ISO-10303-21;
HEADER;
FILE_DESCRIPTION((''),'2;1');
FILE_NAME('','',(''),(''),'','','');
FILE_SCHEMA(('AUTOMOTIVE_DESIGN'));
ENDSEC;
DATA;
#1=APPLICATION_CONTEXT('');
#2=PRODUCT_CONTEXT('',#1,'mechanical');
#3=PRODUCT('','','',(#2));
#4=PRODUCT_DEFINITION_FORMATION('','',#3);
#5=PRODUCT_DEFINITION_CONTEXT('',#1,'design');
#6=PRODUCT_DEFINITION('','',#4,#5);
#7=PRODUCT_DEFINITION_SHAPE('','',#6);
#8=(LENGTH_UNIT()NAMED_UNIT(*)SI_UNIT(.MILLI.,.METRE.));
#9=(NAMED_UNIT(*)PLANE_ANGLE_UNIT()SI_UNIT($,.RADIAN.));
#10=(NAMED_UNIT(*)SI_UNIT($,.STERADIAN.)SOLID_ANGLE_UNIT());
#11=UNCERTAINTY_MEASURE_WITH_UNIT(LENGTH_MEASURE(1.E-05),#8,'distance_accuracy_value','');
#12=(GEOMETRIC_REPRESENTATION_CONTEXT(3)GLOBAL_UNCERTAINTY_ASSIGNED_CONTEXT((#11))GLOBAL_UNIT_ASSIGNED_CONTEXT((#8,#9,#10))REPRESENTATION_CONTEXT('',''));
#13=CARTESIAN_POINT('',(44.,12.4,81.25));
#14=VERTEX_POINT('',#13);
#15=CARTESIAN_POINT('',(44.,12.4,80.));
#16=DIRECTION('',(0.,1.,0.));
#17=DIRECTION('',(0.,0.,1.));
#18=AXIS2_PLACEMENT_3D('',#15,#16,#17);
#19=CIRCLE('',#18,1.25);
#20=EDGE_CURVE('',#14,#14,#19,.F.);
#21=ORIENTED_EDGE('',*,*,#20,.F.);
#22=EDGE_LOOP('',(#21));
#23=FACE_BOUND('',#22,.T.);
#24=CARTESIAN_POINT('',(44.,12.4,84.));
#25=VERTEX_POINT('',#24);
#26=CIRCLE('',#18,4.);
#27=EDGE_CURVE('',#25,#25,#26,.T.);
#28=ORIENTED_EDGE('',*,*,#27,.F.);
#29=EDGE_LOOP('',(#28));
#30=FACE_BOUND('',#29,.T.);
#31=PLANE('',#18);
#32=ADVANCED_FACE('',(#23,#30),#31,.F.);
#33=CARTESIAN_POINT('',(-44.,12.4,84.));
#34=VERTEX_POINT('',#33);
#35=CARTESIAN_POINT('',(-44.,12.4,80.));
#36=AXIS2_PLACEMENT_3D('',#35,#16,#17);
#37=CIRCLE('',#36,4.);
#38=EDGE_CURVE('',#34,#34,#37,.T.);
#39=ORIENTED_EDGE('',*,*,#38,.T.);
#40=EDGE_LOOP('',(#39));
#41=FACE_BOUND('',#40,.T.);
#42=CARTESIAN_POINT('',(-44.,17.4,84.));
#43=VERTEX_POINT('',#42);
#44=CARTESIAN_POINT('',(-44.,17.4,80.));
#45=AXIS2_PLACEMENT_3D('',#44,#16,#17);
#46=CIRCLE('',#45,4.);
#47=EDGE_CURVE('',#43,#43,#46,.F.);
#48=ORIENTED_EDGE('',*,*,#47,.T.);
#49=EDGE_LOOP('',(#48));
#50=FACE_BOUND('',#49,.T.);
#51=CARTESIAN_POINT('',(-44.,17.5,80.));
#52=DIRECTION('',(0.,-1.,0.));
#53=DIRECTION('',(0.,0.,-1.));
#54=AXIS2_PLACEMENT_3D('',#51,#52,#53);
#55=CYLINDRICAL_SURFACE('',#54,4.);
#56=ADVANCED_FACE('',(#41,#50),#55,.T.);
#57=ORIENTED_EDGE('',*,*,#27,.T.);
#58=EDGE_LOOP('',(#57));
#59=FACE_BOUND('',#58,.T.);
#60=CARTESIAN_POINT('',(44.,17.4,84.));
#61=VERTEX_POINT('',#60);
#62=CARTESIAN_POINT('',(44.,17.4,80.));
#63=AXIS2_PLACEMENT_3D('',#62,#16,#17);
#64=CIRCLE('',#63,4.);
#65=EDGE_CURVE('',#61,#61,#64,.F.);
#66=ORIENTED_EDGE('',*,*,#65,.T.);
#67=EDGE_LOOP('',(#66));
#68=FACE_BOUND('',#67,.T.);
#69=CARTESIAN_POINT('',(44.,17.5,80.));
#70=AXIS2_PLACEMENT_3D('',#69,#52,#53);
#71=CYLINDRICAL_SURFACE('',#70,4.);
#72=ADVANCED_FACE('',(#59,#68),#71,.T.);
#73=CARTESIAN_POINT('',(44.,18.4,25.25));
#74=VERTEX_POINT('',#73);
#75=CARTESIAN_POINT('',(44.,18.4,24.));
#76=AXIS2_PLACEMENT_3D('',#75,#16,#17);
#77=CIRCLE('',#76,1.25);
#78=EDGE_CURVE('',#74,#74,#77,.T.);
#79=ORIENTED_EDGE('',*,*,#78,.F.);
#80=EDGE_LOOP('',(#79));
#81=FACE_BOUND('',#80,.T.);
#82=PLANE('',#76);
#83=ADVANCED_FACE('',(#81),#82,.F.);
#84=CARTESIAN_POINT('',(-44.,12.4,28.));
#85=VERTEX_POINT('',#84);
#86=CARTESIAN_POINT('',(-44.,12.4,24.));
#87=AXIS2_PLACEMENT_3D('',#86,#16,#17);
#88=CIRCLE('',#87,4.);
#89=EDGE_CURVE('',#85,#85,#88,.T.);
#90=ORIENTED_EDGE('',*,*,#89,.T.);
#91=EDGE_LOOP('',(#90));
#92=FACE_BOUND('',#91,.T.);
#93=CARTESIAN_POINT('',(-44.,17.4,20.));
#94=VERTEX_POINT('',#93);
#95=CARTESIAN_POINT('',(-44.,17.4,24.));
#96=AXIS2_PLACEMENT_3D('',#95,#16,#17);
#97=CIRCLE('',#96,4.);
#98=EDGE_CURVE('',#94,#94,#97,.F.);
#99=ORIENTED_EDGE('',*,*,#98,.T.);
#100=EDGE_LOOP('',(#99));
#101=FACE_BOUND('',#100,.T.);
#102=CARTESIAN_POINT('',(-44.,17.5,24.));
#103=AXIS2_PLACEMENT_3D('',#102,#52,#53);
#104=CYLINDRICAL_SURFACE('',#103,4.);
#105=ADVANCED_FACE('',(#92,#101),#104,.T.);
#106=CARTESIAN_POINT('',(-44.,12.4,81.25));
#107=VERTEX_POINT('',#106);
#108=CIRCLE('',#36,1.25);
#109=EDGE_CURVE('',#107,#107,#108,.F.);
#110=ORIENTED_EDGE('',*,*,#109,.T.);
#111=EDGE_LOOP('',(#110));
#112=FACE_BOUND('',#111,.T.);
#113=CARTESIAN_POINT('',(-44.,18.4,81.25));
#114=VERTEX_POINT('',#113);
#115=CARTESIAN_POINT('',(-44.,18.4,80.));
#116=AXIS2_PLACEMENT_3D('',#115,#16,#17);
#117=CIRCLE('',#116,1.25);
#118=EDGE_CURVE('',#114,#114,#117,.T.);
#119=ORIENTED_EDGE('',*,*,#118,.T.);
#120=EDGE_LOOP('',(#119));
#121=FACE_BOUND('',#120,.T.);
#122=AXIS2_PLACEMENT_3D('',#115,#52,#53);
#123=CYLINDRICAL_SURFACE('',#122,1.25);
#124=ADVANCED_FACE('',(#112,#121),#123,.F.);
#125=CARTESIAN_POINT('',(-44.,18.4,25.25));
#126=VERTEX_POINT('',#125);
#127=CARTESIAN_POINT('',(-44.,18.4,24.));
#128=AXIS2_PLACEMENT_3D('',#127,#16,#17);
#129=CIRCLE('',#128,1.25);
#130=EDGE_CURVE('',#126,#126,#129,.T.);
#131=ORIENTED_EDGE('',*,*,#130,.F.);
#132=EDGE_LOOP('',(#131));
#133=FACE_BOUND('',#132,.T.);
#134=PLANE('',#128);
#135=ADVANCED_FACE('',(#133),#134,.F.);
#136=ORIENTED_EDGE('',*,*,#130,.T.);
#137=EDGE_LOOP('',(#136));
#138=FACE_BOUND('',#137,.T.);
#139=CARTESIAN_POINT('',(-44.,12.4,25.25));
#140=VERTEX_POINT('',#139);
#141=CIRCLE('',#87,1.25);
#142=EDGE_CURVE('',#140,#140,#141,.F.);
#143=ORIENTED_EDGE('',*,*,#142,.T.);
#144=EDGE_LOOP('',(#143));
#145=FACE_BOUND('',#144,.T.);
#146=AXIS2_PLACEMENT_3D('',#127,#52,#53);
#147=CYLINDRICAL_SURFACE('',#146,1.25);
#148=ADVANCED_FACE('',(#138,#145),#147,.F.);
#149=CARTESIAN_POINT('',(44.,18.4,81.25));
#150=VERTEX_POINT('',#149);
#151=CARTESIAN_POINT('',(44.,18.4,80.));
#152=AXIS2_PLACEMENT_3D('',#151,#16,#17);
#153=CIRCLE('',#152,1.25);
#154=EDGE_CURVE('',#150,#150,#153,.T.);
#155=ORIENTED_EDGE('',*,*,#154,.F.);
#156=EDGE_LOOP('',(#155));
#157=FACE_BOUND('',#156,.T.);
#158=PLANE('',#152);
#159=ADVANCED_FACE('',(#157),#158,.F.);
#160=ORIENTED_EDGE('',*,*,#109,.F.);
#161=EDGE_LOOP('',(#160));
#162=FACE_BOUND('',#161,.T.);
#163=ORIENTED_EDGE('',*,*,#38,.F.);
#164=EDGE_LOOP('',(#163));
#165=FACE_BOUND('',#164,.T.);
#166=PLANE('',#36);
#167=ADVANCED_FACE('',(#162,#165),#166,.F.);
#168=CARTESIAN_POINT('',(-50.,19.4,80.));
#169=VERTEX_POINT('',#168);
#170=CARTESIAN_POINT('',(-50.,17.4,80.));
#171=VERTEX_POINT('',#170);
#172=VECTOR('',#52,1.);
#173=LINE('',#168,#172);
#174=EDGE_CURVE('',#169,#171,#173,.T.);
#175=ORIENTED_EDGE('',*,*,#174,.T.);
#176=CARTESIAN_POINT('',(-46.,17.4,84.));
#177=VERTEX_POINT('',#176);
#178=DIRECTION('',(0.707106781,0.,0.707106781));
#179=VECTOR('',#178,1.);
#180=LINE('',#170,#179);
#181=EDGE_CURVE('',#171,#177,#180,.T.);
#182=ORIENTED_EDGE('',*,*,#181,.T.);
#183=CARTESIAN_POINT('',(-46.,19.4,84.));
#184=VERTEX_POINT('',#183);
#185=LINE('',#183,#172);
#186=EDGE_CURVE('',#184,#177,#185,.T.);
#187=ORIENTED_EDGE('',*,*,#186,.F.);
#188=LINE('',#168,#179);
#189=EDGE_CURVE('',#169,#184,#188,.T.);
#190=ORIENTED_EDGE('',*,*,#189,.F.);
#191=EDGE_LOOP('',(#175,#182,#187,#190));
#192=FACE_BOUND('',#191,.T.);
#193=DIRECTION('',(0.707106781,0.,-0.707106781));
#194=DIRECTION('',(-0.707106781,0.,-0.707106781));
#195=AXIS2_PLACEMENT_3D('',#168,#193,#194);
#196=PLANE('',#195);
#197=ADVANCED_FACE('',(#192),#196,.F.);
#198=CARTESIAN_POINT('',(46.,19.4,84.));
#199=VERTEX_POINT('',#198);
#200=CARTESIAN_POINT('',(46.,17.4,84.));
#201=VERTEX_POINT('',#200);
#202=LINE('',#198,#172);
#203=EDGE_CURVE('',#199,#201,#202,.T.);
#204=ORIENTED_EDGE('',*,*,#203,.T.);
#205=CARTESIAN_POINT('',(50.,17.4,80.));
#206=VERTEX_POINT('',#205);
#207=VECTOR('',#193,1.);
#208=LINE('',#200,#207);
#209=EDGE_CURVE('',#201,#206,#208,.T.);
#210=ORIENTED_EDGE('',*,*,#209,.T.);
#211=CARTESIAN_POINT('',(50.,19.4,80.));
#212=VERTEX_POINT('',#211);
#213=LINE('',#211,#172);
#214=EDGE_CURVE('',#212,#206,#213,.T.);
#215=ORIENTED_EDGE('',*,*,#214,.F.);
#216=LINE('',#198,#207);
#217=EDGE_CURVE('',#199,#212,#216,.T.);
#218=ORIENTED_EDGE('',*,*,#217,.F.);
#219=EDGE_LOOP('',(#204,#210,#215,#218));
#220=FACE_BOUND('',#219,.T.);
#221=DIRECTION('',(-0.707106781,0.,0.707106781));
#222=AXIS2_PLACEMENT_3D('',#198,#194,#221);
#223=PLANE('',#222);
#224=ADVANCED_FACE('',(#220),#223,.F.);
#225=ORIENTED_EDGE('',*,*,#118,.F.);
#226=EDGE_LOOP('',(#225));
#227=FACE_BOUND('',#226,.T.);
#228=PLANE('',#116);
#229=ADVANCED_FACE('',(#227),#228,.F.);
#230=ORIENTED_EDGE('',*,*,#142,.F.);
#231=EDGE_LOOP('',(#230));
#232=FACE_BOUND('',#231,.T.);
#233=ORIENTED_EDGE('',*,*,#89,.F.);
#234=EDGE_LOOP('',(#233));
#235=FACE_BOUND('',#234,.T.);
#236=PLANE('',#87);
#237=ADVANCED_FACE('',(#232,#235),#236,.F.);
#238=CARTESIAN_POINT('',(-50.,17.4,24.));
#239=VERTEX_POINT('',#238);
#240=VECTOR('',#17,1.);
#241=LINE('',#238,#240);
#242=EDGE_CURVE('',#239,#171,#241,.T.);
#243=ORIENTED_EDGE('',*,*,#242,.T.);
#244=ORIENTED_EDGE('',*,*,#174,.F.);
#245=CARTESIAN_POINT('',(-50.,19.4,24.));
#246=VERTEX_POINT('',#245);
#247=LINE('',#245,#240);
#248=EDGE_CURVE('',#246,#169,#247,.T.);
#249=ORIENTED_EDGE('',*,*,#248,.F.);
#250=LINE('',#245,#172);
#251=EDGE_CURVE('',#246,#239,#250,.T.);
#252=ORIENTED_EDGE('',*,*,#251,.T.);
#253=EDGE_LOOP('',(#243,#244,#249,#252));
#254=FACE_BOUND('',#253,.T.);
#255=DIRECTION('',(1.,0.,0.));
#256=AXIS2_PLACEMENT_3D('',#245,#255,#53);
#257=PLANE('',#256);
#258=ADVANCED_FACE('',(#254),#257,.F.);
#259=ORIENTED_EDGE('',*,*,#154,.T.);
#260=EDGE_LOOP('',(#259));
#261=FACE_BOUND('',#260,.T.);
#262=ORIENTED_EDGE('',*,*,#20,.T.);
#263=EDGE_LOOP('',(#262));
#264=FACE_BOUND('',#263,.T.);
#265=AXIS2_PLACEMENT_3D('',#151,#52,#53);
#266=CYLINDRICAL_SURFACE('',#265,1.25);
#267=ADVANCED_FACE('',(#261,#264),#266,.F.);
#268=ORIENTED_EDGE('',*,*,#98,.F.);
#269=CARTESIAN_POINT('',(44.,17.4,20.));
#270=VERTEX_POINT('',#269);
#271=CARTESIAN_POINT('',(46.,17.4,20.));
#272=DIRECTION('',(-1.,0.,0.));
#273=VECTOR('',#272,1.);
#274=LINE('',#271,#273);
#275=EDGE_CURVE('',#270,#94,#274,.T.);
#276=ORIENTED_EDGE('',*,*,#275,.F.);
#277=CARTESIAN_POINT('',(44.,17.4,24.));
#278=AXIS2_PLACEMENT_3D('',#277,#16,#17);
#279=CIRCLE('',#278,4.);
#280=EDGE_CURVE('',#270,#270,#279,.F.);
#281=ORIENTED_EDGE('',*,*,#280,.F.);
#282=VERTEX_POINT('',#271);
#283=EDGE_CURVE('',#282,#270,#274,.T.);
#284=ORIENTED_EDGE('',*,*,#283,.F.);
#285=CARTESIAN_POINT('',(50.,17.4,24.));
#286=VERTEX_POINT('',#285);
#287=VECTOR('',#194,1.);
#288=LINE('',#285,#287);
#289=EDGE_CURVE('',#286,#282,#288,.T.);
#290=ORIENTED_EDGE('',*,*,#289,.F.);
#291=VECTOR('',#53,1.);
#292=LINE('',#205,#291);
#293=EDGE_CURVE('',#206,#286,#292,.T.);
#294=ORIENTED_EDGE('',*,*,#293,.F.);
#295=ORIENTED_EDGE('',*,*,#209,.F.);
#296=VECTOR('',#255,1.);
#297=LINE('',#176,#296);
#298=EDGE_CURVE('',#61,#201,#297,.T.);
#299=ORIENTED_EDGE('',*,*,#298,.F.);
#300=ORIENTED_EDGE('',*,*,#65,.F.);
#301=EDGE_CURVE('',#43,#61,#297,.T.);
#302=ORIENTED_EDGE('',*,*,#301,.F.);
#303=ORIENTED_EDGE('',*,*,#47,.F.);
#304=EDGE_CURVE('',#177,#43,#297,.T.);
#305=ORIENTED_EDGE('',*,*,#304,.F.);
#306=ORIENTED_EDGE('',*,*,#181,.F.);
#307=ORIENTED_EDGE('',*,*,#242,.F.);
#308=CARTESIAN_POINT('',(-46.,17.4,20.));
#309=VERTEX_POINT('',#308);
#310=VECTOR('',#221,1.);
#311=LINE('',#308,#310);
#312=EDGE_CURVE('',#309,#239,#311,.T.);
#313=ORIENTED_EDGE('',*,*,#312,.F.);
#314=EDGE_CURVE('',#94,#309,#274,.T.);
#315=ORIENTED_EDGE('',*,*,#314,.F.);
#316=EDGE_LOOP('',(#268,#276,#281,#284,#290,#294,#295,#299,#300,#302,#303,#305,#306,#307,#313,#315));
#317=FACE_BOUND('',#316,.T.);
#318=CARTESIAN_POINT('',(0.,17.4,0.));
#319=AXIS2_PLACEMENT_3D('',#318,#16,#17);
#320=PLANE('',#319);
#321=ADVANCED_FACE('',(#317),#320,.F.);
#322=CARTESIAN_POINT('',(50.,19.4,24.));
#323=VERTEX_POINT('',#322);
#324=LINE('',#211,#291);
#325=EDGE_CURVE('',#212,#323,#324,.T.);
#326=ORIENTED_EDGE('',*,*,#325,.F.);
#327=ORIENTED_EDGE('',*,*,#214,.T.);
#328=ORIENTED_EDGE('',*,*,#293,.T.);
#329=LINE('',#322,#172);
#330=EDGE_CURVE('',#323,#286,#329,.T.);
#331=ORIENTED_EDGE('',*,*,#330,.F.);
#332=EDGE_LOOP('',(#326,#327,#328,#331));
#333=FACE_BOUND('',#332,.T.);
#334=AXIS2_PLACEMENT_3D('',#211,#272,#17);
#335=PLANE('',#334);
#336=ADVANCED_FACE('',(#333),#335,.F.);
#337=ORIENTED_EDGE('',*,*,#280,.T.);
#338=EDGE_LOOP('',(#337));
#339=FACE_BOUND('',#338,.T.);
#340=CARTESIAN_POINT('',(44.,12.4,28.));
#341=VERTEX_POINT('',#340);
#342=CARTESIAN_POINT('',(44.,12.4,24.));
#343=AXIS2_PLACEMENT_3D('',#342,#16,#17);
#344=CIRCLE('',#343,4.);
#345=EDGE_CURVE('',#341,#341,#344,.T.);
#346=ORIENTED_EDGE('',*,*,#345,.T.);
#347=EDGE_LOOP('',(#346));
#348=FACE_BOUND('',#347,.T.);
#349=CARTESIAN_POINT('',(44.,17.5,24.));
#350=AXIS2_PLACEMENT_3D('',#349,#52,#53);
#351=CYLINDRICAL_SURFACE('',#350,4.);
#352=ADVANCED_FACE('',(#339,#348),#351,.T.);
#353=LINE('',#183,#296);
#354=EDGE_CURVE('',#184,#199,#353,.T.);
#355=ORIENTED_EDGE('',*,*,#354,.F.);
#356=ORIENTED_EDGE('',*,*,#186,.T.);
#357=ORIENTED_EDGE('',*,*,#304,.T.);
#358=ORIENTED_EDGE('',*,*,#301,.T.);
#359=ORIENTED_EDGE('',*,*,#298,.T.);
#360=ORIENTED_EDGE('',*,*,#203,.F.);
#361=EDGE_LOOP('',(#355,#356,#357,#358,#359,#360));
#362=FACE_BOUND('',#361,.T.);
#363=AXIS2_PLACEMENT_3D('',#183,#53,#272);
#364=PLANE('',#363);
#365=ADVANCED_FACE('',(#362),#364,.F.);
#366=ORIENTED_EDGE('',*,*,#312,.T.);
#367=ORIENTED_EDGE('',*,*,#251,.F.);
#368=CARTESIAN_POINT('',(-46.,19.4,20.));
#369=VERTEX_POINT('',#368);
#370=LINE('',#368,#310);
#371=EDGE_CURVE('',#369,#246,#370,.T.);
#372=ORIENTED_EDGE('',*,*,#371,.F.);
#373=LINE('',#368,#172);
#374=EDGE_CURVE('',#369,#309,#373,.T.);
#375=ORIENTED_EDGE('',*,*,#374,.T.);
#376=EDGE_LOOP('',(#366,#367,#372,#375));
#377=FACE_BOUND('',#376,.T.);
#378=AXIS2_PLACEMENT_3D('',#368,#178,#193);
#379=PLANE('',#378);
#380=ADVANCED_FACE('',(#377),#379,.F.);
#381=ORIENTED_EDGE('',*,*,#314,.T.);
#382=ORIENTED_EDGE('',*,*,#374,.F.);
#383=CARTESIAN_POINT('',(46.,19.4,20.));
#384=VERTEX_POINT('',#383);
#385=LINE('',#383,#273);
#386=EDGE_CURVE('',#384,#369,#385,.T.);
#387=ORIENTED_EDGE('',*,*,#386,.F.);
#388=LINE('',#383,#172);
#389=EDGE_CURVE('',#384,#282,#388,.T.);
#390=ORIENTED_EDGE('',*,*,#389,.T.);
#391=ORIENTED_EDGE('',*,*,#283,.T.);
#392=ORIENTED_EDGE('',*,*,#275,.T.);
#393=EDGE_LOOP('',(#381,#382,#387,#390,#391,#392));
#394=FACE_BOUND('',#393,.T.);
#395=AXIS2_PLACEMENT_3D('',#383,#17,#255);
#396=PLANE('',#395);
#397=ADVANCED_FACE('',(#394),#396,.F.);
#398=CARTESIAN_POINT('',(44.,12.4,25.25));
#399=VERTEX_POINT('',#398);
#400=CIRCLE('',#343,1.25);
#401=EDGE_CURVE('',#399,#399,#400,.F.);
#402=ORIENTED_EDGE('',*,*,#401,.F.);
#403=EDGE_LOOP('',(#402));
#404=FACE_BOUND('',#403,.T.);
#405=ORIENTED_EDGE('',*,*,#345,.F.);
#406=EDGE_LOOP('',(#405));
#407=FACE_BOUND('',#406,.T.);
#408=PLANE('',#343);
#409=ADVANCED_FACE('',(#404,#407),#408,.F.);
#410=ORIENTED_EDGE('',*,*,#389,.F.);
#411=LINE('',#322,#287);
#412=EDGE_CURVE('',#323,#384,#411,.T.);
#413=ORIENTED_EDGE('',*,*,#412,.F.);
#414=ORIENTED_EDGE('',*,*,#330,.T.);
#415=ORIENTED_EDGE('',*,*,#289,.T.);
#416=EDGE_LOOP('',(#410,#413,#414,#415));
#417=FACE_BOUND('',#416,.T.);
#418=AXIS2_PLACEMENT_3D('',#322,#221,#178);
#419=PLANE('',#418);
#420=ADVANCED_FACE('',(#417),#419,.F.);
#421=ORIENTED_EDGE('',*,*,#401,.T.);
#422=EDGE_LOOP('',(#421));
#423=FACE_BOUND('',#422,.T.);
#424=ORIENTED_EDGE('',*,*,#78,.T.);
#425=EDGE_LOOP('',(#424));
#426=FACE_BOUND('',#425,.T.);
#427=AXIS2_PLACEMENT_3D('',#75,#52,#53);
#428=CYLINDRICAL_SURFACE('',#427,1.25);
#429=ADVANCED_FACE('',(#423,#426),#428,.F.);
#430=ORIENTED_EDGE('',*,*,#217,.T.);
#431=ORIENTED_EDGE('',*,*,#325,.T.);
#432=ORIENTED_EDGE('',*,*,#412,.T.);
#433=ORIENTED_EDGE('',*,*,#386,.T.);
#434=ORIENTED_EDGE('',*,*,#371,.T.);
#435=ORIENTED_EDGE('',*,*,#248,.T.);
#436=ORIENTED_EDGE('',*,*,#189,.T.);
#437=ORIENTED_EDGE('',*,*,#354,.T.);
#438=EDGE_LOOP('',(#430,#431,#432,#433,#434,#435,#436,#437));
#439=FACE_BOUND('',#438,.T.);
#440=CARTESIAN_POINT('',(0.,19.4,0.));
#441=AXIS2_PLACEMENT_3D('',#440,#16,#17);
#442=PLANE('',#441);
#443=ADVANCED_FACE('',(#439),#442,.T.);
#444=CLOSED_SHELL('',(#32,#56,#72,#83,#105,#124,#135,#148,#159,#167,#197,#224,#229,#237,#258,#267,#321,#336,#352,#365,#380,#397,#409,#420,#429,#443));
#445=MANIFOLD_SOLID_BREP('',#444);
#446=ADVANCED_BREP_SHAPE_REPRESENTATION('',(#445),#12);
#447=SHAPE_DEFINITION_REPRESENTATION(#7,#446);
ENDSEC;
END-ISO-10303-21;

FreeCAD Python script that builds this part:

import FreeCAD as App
import Part
import Sketcher

V = App.Vector
Q = App.Units.Quantity

doc = App.newDocument("Part")
body = doc.addObject("PartDesign::Body", "Body")

# Sketch on XZ plane
sketch1 = doc.addObject("Sketcher::SketchObject", "Sketch")
body.addObject(sketch1)
sketch1.AttachmentSupport = (doc.XZ_Plane, [""])
sketch1.MapMode = "FlatFace"
sketch1.AttachmentOffset = App.Placement(V(0, 0, -17.4), App.Rotation())
sketch1.addGeometry([
    Part.LineSegment(V(-46, 84, 0), V(46, 84, 0)),  # 0
    Part.LineSegment(V(46, 84, 0), V(50, 80, 0)),  # 1
    Part.LineSegment(V(50, 80, 0), V(50, 24, 0)),  # 2
    Part.LineSegment(V(50, 24, 0), V(46, 20, 0)),  # 3
    Part.LineSegment(V(46, 20, 0), V(-46, 20, 0)),  # 4
    Part.LineSegment(V(-46, 20, 0), V(-50, 24, 0)),  # 5
    Part.LineSegment(V(-50, 24, 0), V(-50, 80, 0)),  # 6
    Part.LineSegment(V(-50, 80, 0), V(-46, 84, 0)),  # 7
], False)
sketch1.addConstraint([
    Sketcher.Constraint("Coincident", 0, 2, 1, 1),
    Sketcher.Constraint("Coincident", 1, 2, 2, 1),
    Sketcher.Constraint("Coincident", 2, 2, 3, 1),
    Sketcher.Constraint("Coincident", 3, 2, 4, 1),
    Sketcher.Constraint("Coincident", 4, 2, 5, 1),
    Sketcher.Constraint("Coincident", 5, 2, 6, 1),
    Sketcher.Constraint("Coincident", 6, 2, 7, 1),
    Sketcher.Constraint("Coincident", 7, 2, 0, 1),
    Sketcher.Constraint("Horizontal", 0),
    Sketcher.Constraint("Vertical", 2),
    Sketcher.Constraint("Horizontal", 4),
    Sketcher.Constraint("Vertical", 6),
    Sketcher.Constraint("Symmetric", 2, 2, 5, 2, -2),
    Sketcher.Constraint("Perpendicular", 1, 3),
    Sketcher.Constraint("Perpendicular", 3, 5),
    Sketcher.Constraint("Perpendicular", 5, 7),
    Sketcher.Constraint("Horizontal", 1, 2, 6, 2),
    Sketcher.Constraint("Vertical", 0, 2, 3, 2),
    Sketcher.Constraint("Vertical", 4, 2, 7, 2),
    Sketcher.Constraint("DistanceX", 0, 1, 0, 2, Q("92 mm")),
    Sketcher.Constraint("DistanceY", 2, 2, 2, 1, Q("56 mm")),
    Sketcher.Constraint("DistanceY", -1, 1, 0, 2, Q("84 mm")),
    Sketcher.Constraint("DistanceX", -1, 1, 1, 2, Q("50 mm")),
])
pad1 = doc.addObject("PartDesign::Pad", "Pad")
body.addObject(pad1)
pad1.Profile = sketch1
pad1.Length = 2
pad1.Reversed = True

# Sketch on XZ plane
sketch2 = doc.addObject("Sketcher::SketchObject", "Sketch001")
body.addObject(sketch2)
sketch2.AttachmentSupport = (doc.XZ_Plane, [""])
sketch2.MapMode = "FlatFace"
sketch2.AttachmentOffset = App.Placement(V(0, 0, -12.4), App.Rotation())
sketch2.addGeometry([
    Part.Circle(V(-44, 24, 0), V(0, 0, 1), 4),
    Part.Circle(V(-44, 80, 0), V(0, 0, 1), 4),
    Part.Circle(V(44, 24, 0), V(0, 0, 1), 4),
    Part.Circle(V(44, 80, 0), V(0, 0, 1), 4),
], False)
sketch2.addConstraint([
    Sketcher.Constraint("Equal", 0, 1),
    Sketcher.Constraint("Equal", 1, 2),
    Sketcher.Constraint("Equal", 2, 3),
    Sketcher.Constraint("Symmetric", 0, 3, 2, 3, -2),
    Sketcher.Constraint("Symmetric", 1, 3, 3, 3, -2),
    Sketcher.Constraint("Vertical", 0, 3, 1, 3),
    Sketcher.Constraint("Diameter", 0, Q("8 mm")),
    Sketcher.Constraint("DistanceX", 0, 3, -1, 1, Q("44 mm")),
    Sketcher.Constraint("DistanceY", -1, 1, 0, 3, Q("24 mm")),
    Sketcher.Constraint("DistanceY", -1, 1, 1, 3, Q("80 mm")),
])
pad2 = doc.addObject("PartDesign::Pad", "Pad001")
body.addObject(pad2)
pad2.Profile = sketch2
pad2.Length = 5.1
pad2.Reversed = True

# Sketch on XZ plane
sketch3 = doc.addObject("Sketcher::SketchObject", "Sketch002")
body.addObject(sketch3)
sketch3.AttachmentSupport = (doc.XZ_Plane, [""])
sketch3.MapMode = "FlatFace"
sketch3.AttachmentOffset = App.Placement(V(0, 0, -11.9), App.Rotation())
sketch3.addGeometry([
    Part.Circle(V(-44, 24, 0), V(0, 0, 1), 1.25),
    Part.Circle(V(-44, 80, 0), V(0, 0, 1), 1.25),
    Part.Circle(V(44, 24, 0), V(0, 0, 1), 1.25),
    Part.Circle(V(44, 80, 0), V(0, 0, 1), 1.25),
], False)
sketch3.addConstraint([
    Sketcher.Constraint("Equal", 0, 1),
    Sketcher.Constraint("Equal", 1, 2),
    Sketcher.Constraint("Equal", 2, 3),
    Sketcher.Constraint("Symmetric", 0, 3, 2, 3, -2),
    Sketcher.Constraint("Symmetric", 1, 3, 3, 3, -2),
    Sketcher.Constraint("Vertical", 0, 3, 1, 3),
    Sketcher.Constraint("Diameter", 0, Q("2.5 mm")),
    Sketcher.Constraint("DistanceX", 0, 3, -1, 1, Q("44 mm")),
    Sketcher.Constraint("DistanceY", -1, 1, 0, 3, Q("24 mm")),
    Sketcher.Constraint("DistanceY", -1, 1, 1, 3, Q("80 mm")),
])
pocket1 = doc.addObject("PartDesign::Pocket", "Pocket")
body.addObject(pocket1)
pocket1.Profile = sketch3
pocket1.Length = 6.5

doc.recompute()
